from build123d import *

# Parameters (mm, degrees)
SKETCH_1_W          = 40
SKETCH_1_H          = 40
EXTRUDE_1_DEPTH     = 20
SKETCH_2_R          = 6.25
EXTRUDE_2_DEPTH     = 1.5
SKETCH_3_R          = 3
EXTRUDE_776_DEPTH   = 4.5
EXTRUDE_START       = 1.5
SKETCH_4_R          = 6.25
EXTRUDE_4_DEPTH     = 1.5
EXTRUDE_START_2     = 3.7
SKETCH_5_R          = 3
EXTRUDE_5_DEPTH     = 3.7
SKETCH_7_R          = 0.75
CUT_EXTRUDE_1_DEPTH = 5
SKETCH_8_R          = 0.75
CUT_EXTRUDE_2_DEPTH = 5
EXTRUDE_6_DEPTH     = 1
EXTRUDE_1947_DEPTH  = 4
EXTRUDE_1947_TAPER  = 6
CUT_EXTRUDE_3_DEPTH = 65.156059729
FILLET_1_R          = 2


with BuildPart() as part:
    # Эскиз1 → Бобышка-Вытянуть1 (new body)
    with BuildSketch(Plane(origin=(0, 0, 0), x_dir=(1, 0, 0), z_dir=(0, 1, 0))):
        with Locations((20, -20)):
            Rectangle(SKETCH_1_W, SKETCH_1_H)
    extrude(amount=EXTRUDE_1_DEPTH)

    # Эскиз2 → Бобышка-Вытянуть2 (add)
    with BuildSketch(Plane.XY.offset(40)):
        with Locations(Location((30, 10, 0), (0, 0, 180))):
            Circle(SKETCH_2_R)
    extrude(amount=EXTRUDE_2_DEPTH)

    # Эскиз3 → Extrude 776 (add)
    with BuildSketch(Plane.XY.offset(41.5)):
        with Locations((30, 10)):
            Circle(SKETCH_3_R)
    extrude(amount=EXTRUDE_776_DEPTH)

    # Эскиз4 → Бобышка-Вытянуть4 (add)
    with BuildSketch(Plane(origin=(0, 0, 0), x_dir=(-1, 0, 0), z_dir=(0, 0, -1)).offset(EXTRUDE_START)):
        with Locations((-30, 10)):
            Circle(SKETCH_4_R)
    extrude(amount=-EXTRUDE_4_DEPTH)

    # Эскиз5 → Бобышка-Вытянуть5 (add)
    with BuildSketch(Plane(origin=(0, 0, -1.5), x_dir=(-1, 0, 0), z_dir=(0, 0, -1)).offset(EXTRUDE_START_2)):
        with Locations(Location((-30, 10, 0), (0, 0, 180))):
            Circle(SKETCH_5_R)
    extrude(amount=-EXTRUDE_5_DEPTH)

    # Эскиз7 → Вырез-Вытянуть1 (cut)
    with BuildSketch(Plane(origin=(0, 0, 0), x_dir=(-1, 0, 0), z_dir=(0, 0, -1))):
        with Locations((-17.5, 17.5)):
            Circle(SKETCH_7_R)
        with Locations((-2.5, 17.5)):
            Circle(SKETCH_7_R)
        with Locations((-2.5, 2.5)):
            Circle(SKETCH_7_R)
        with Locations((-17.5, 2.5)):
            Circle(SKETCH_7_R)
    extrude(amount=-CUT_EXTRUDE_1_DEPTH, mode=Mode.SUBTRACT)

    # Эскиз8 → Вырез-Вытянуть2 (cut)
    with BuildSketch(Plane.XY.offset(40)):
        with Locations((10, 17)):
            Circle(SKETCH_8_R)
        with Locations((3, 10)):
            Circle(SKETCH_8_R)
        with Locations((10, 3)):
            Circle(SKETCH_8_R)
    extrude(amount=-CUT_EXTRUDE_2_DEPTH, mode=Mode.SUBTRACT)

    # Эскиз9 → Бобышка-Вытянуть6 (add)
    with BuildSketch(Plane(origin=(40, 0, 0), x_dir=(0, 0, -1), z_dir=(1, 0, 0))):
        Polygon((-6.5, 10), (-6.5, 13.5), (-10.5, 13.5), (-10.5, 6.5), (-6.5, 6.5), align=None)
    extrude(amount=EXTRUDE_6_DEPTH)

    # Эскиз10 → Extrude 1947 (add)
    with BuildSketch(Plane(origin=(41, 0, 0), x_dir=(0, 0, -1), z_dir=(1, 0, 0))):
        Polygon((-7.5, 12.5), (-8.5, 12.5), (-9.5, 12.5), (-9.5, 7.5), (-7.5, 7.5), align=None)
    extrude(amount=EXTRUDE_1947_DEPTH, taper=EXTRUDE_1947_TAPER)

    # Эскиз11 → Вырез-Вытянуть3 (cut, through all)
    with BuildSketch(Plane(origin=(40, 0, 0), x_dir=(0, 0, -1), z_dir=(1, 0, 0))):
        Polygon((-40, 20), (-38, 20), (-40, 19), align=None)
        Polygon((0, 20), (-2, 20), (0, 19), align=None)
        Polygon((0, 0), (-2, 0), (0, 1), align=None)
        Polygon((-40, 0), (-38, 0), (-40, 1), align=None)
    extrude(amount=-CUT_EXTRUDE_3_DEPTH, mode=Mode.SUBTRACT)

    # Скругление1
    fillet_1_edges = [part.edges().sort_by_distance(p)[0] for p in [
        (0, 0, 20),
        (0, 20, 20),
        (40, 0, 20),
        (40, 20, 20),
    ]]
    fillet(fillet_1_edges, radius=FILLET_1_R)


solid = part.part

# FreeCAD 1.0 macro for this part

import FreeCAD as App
import Part
import Sketcher
Q = App.Units.Quantity


def edges_at(feature, points):
    """Names of the edges that pass closest to the given points."""
    edges = feature.Shape.Edges
    near = lambda p: min(range(len(edges)), key=lambda i: edges[i].distToShape(Part.Vertex(*p))[0])
    return sorted({f"Edge{near(p) + 1}" for p in points})

doc = App.newDocument("Part")
params = doc.addObject("Spreadsheet::Sheet", "Params")
for row, (alias, value) in enumerate([
    ("sketch1_width", "40 mm"),
    ("pad1_length", "20 mm"),
    ("sketch2_diameter", "12.5 mm"),
    ("pad2_length", "1.5 mm"),
    ("sketch3_diameter", "6 mm"),
    ("pad3_length", "4.5 mm"),
    ("sketch4_diameter", "12.5 mm"),
    ("pad4_length", "1.5 mm"),
    ("sketch5_diameter", "6 mm"),
    ("pad5_length", "3.7 mm"),
    ("sketch6_diameter", "1.5 mm"),
    ("pocket1_length", "5 mm"),
    ("sketch7_diameter", "1.5 mm"),
    ("pocket2_length", "5 mm"),
    ("sketch8_width", "7 mm"),
    ("sketch8_height", "4 mm"),
    ("pad6_length", "1 mm"),
    ("sketch9_width", "5 mm"),
    ("sketch9_height", "2 mm"),
    ("pad7_length", "4 mm"),
    ("pad7_taper", "-6 deg"),
    ("sketch10_width", "1 mm"),
    ("sketch10_height", "2 mm"),
    ("fillet_radius", "2 mm"),
], start=1):
    params.set(f"A{row}", alias)
    params.set(f"B{row}", "=" + value)
    params.setAlias(f"B{row}", alias)

body = doc.addObject("PartDesign::Body", "Body")

# Sketch on XZ plane
sketch1 = body.newObject("Sketcher::SketchObject", "Sketch")
sketch1.AttachmentSupport = (doc.getObject("XZ_Plane"), [""])
sketch1.MapMode = "FlatFace"
sketch1.addGeometry(Part.LineSegment(App.Vector(0, 0, 0), App.Vector(0, 40, 0)), False)
sketch1.addGeometry(Part.LineSegment(App.Vector(0, 40, 0), App.Vector(40, 40, 0)), False)
sketch1.addGeometry(Part.LineSegment(App.Vector(40, 40, 0), App.Vector(40, 0, 0)), False)
sketch1.addGeometry(Part.LineSegment(App.Vector(40, 0, 0), App.Vector(0, 0, 0)), False)
sketch1.addConstraint(Sketcher.Constraint("Coincident", 0, 2, 1, 1))
sketch1.addConstraint(Sketcher.Constraint("Coincident", 1, 2, 2, 1))
sketch1.addConstraint(Sketcher.Constraint("Coincident", 2, 2, 3, 1))
sketch1.addConstraint(Sketcher.Constraint("Coincident", 3, 2, 0, 1))
sketch1.addConstraint(Sketcher.Constraint("Vertical", 0))
sketch1.addConstraint(Sketcher.Constraint("Horizontal", 1))
sketch1.addConstraint(Sketcher.Constraint("Vertical", 2))
sketch1.addConstraint(Sketcher.Constraint("Horizontal", 3))
sketch1.addConstraint(Sketcher.Constraint("Coincident", 3, 2, -1, 1))
sketch1.addConstraint(Sketcher.Constraint("Equal", 3, 0))
sketch1.addConstraint(Sketcher.Constraint("DistanceX", 1, 1, 1, 2, Q("40 mm")))
sketch1.setExpression("Constraints[10]", "Params.sketch1_width")
pad1 = body.newObject("PartDesign::Pad", "Pad")
pad1.Profile = sketch1
pad1.setExpression("Length", "Params.pad1_length")
pad1.Reversed = True

# Sketch on XY plane
sketch2 = body.newObject("Sketcher::SketchObject", "Sketch001")
sketch2.AttachmentSupport = (doc.getObject("XY_Plane"), [""])
sketch2.MapMode = "FlatFace"
sketch2.AttachmentOffset = App.Placement(App.Vector(0, 0, 40), App.Rotation())
sketch2.addGeometry(Part.Circle(App.Vector(30, 10, 0), App.Vector(0, 0, 1), 6), False)
sketch2.addConstraint(Sketcher.Constraint("Diameter", 0, Q("12.5 mm")))
sketch2.addConstraint(Sketcher.Constraint("DistanceX", -1, 1, 0, 3, Q("30 mm")))
sketch2.addConstraint(Sketcher.Constraint("DistanceY", -1, 1, 0, 3, Q("10 mm")))
sketch2.setExpression("Constraints[0]", "Params.sketch2_diameter")
pad2 = body.newObject("PartDesign::Pad", "Pad001")
pad2.Profile = sketch2
pad2.setExpression("Length", "Params.pad2_length")

# Sketch on XY plane
sketch3 = body.newObject("Sketcher::SketchObject", "Sketch002")
sketch3.AttachmentSupport = (doc.getObject("XY_Plane"), [""])
sketch3.MapMode = "FlatFace"
sketch3.AttachmentOffset = App.Placement(App.Vector(0, 0, 41.5), App.Rotation())
sketch3.addGeometry(Part.Circle(App.Vector(30, 10, 0), App.Vector(0, 0, 1), 3), False)
sketch3.addConstraint(Sketcher.Constraint("Diameter", 0, Q("6 mm")))
sketch3.addConstraint(Sketcher.Constraint("DistanceX", -1, 1, 0, 3, Q("30 mm")))
sketch3.addConstraint(Sketcher.Constraint("DistanceY", -1, 1, 0, 3, Q("10 mm")))
sketch3.setExpression("Constraints[0]", "Params.sketch3_diameter")
pad3 = body.newObject("PartDesign::Pad", "Pad002")
pad3.Profile = sketch3
pad3.setExpression("Length", "Params.pad3_length")

# Sketch on XY plane
sketch4 = body.newObject("Sketcher::SketchObject", "Sketch003")
sketch4.AttachmentSupport = (doc.getObject("XY_Plane"), [""])
sketch4.MapMode = "FlatFace"
sketch4.AttachmentOffset = App.Placement(App.Vector(0, 0, -1.5), App.Rotation())
sketch4.addGeometry(Part.Circle(App.Vector(30, 10, 0), App.Vector(0, 0, 1), 6), False)
sketch4.addConstraint(Sketcher.Constraint("Diameter", 0, Q("12.5 mm")))
sketch4.addConstraint(Sketcher.Constraint("DistanceX", -1, 1, 0, 3, Q("30 mm")))
sketch4.addConstraint(Sketcher.Constraint("DistanceY", -1, 1, 0, 3, Q("10 mm")))
sketch4.setExpression("Constraints[0]", "Params.sketch4_diameter")
pad4 = body.newObject("PartDesign::Pad", "Pad003")
pad4.Profile = sketch4
pad4.setExpression("Length", "Params.pad4_length")

# Sketch on XY plane
sketch5 = body.newObject("Sketcher::SketchObject", "Sketch004")
sketch5.AttachmentSupport = (doc.getObject("XY_Plane"), [""])
sketch5.MapMode = "FlatFace"
sketch5.AttachmentOffset = App.Placement(App.Vector(0, 0, -5.2), App.Rotation())
sketch5.addGeometry(Part.Circle(App.Vector(30, 10, 0), App.Vector(0, 0, 1), 3), False)
sketch5.addConstraint(Sketcher.Constraint("Diameter", 0, Q("6 mm")))
sketch5.addConstraint(Sketcher.Constraint("DistanceX", -1, 1, 0, 3, Q("30 mm")))
sketch5.addConstraint(Sketcher.Constraint("DistanceY", -1, 1, 0, 3, Q("10 mm")))
sketch5.setExpression("Constraints[0]", "Params.sketch5_diameter")
pad5 = body.newObject("PartDesign::Pad", "Pad004")
pad5.Profile = sketch5
pad5.setExpression("Length", "Params.pad5_length")

# Sketch on XY plane
sketch6 = body.newObject("Sketcher::SketchObject", "Sketch005")
sketch6.AttachmentSupport = (doc.getObject("XY_Plane"), [""])
sketch6.MapMode = "FlatFace"
sketch6.addGeometry(Part.Circle(App.Vector(17.5, 17.5, 0), App.Vector(0, 0, 1), 0.8), False)
sketch6.addGeometry(Part.Circle(App.Vector(2.5, 17.5, 0), App.Vector(0, 0, 1), 0.8), False)
sketch6.addGeometry(Part.Circle(App.Vector(2.5, 2.5, 0), App.Vector(0, 0, 1), 0.8), False)
sketch6.addGeometry(Part.Circle(App.Vector(17.5, 2.5, 0), App.Vector(0, 0, 1), 0.8), False)
sketch6.addConstraint(Sketcher.Constraint("Equal", 0, 1))
sketch6.addConstraint(Sketcher.Constraint("Equal", 1, 2))
sketch6.addConstraint(Sketcher.Constraint("Equal", 2, 3))
sketch6.addConstraint(Sketcher.Constraint("Horizontal", 0, 3, 1, 3))
sketch6.addConstraint(Sketcher.Constraint("Horizontal", 2, 3, 3, 3))
sketch6.addConstraint(Sketcher.Constraint("Vertical", 1, 3, 2, 3))
sketch6.addConstraint(Sketcher.Constraint("Vertical", 0, 3, 3, 3))
sketch6.addConstraint(Sketcher.Constraint("Diameter", 0, Q("1.5 mm")))
sketch6.addConstraint(Sketcher.Constraint("DistanceX", 1, 3, 0, 3, Q("15 mm")))
sketch6.addConstraint(Sketcher.Constraint("DistanceY", 2, 3, 1, 3, Q("15 mm")))
sketch6.addConstraint(Sketcher.Constraint("DistanceX", -1, 1, 0, 3, Q("17.5 mm")))
sketch6.addConstraint(Sketcher.Constraint("DistanceY", -1, 1, 0, 3, Q("17.5 mm")))
sketch6.setExpression("Constraints[7]", "Params.sketch6_diameter")
pocket1 = body.newObject("PartDesign::Pocket", "Pocket")
pocket1.Profile = sketch6
pocket1.setExpression("Length", "Params.pocket1_length")
pocket1.Reversed = True

# Sketch on XY plane
sketch7 = body.newObject("Sketcher::SketchObject", "Sketch006")
sketch7.AttachmentSupport = (doc.getObject("XY_Plane"), [""])
sketch7.MapMode = "FlatFace"
sketch7.AttachmentOffset = App.Placement(App.Vector(0, 0, 40), App.Rotation())
sketch7.addGeometry(Part.Circle(App.Vector(10, 17, 0), App.Vector(0, 0, 1), 0.8), False)
sketch7.addGeometry(Part.Circle(App.Vector(3, 10, 0), App.Vector(0, 0, 1), 0.8), False)
sketch7.addGeometry(Part.Circle(App.Vector(10, 3, 0), App.Vector(0, 0, 1), 0.8), False)
sketch7.addConstraint(Sketcher.Constraint("Equal", 0, 1))
sketch7.addConstraint(Sketcher.Constraint("Equal", 1, 2))
sketch7.addConstraint(Sketcher.Constraint("Vertical", 0, 3, 2, 3))
sketch7.addConstraint(Sketcher.Constraint("Diameter", 0, Q("1.5 mm")))
sketch7.addConstraint(Sketcher.Constraint("DistanceX", -1, 1, 0, 3, Q("10 mm")))
sketch7.addConstraint(Sketcher.Constraint("DistanceY", -1, 1, 0, 3, Q("17 mm")))
sketch7.addConstraint(Sketcher.Constraint("DistanceX", -1, 1, 1, 3, Q("3 mm")))
sketch7.addConstraint(Sketcher.Constraint("DistanceY", -1, 1, 1, 3, Q("10 mm")))
sketch7.addConstraint(Sketcher.Constraint("DistanceY", -1, 1, 2, 3, Q("3 mm")))
sketch7.setExpression("Constraints[3]", "Params.sketch7_diameter")
pocket2 = body.newObject("PartDesign::Pocket", "Pocket001")
pocket2.Profile = sketch7
pocket2.setExpression("Length", "Params.pocket2_length")

# Sketch on YZ plane
sketch8 = body.newObject("Sketcher::SketchObject", "Sketch007")
sketch8.AttachmentSupport = (doc.getObject("YZ_Plane"), [""])
sketch8.MapMode = "FlatFace"
sketch8.AttachmentOffset = App.Placement(App.Vector(0, 0, 40), App.Rotation())
sketch8.addGeometry(Part.LineSegment(App.Vector(13.5, 6.5, 0), App.Vector(13.5, 10.5, 0)), False)
sketch8.addGeometry(Part.LineSegment(App.Vector(13.5, 10.5, 0), App.Vector(6.5, 10.5, 0)), False)
sketch8.addGeometry(Part.LineSegment(App.Vector(6.5, 10.5, 0), App.Vector(6.5, 6.5, 0)), False)
sketch8.addGeometry(Part.LineSegment(App.Vector(6.5, 6.5, 0), App.Vector(13.5, 6.5, 0)), False)
sketch8.addConstraint(Sketcher.Constraint("Coincident", 0, 2, 1, 1))
sketch8.addConstraint(Sketcher.Constraint("Coincident", 1, 2, 2, 1))
sketch8.addConstraint(Sketcher.Constraint("Coincident", 2, 2, 3, 1))
sketch8.addConstraint(Sketcher.Constraint("Coincident", 3, 2, 0, 1))
sketch8.addConstraint(Sketcher.Constraint("Vertical", 0))
sketch8.addConstraint(Sketcher.Constraint("Horizontal", 1))
sketch8.addConstraint(Sketcher.Constraint("Vertical", 2))
sketch8.addConstraint(Sketcher.Constraint("Horizontal", 3))
sketch8.addConstraint(Sketcher.Constraint("DistanceX", 1, 2, 1, 1, Q("7 mm")))
sketch8.addConstraint(Sketcher.Constraint("DistanceY", 0, 1, 0, 2, Q("4 mm")))
sketch8.addConstraint(Sketcher.Constraint("DistanceX", -1, 1, 0, 2, Q("13.5 mm")))
sketch8.addConstraint(Sketcher.Constraint("DistanceY", -1, 1, 0, 2, Q("10.5 mm")))
sketch8.setExpression("Constraints[8]", "Params.sketch8_width")
sketch8.setExpression("Constraints[9]", "Params.sketch8_height")
pad6 = body.newObject("PartDesign::Pad", "Pad005")
pad6.Profile = sketch8
pad6.setExpression("Length", "Params.pad6_length")

# Sketch on YZ plane
sketch9 = body.newObject("Sketcher::SketchObject", "Sketch008")
sketch9.AttachmentSupport = (doc.getObject("YZ_Plane"), [""])
sketch9.MapMode = "FlatFace"
sketch9.AttachmentOffset = App.Placement(App.Vector(0, 0, 41), App.Rotation())
sketch9.addGeometry(Part.LineSegment(App.Vector(12.5, 7.5, 0), App.Vector(12.5, 9.5, 0)), False)
sketch9.addGeometry(Part.LineSegment(App.Vector(12.5, 9.5, 0), App.Vector(7.5, 9.5, 0)), False)
sketch9.addGeometry(Part.LineSegment(App.Vector(7.5, 9.5, 0), App.Vector(7.5, 7.5, 0)), False)
sketch9.addGeometry(Part.LineSegment(App.Vector(7.5, 7.5, 0), App.Vector(12.5, 7.5, 0)), False)
sketch9.addConstraint(Sketcher.Constraint("Coincident", 0, 2, 1, 1))
sketch9.addConstraint(Sketcher.Constraint("Coincident", 1, 2, 2, 1))
sketch9.addConstraint(Sketcher.Constraint("Coincident", 2, 2, 3, 1))
sketch9.addConstraint(Sketcher.Constraint("Coincident", 3, 2, 0, 1))
sketch9.addConstraint(Sketcher.Constraint("Vertical", 0))
sketch9.addConstraint(Sketcher.Constraint("Horizontal", 1))
sketch9.addConstraint(Sketcher.Constraint("Vertical", 2))
sketch9.addConstraint(Sketcher.Constraint("Horizontal", 3))
sketch9.addConstraint(Sketcher.Constraint("DistanceX", 1, 2, 1, 1, Q("5 mm")))
sketch9.addConstraint(Sketcher.Constraint("DistanceY", 0, 1, 0, 2, Q("2 mm")))
sketch9.addConstraint(Sketcher.Constraint("DistanceX", -1, 1, 0, 2, Q("12.5 mm")))
sketch9.addConstraint(Sketcher.Constraint("DistanceY", -1, 1, 0, 2, Q("9.5 mm")))
sketch9.setExpression("Constraints[8]", "Params.sketch9_width")
sketch9.setExpression("Constraints[9]", "Params.sketch9_height")
pad7 = body.newObject("PartDesign::Pad", "Pad006")
pad7.Profile = sketch9
pad7.setExpression("Length", "Params.pad7_length")
pad7.setExpression("TaperAngle", "Params.pad7_taper")

# Sketch on YZ plane
sketch10 = body.newObject("Sketcher::SketchObject", "Sketch009")
sketch10.AttachmentSupport = (doc.getObject("YZ_Plane"), [""])
sketch10.MapMode = "FlatFace"
sketch10.AttachmentOffset = App.Placement(App.Vector(0, 0, 40), App.Rotation())
sketch10.addGeometry(Part.LineSegment(App.Vector(20, 38, 0), App.Vector(20, 40, 0)), False)
sketch10.addGeometry(Part.LineSegment(App.Vector(20, 40, 0), App.Vector(19, 40, 0)), False)
sketch10.addGeometry(Part.LineSegment(App.Vector(19, 40, 0), App.Vector(20, 38, 0)), False)
sketch10.addGeometry(Part.LineSegment(App.Vector(20, 0, 0), App.Vector(20, 2, 0)), False)
sketch10.addGeometry(Part.LineSegment(App.Vector(20, 2, 0), App.Vector(19, 0, 0)), False)
sketch10.addGeometry(Part.LineSegment(App.Vector(19, 0, 0), App.Vector(20, 0, 0)), False)
sketch10.addGeometry(Part.LineSegment(App.Vector(0, 2, 0), App.Vector(0, 0, 0)), False)
sketch10.addGeometry(Part.LineSegment(App.Vector(0, 0, 0), App.Vector(1, 0, 0)), False)
sketch10.addGeometry(Part.LineSegment(App.Vector(1, 0, 0), App.Vector(0, 2, 0)), False)
sketch10.addGeometry(Part.LineSegment(App.Vector(0, 40, 0), App.Vector(0, 38, 0)), False)
sketch10.addGeometry(Part.LineSegment(App.Vector(0, 38, 0), App.Vector(1, 40, 0)), False)
sketch10.addGeometry(Part.LineSegment(App.Vector(1, 40, 0), App.Vector(0, 40, 0)), False)
sketch10.addConstraint(Sketcher.Constraint("Coincident", 0, 2, 1, 1))
sketch10.addConstraint(Sketcher.Constraint("Coincident", 1, 2, 2, 1))
sketch10.addConstraint(Sketcher.Constraint("Coincident", 2, 2, 0, 1))
sketch10.addConstraint(Sketcher.Constraint("Coincident", 3, 2, 4, 1))
sketch10.addConstraint(Sketcher.Constraint("Coincident", 4, 2, 5, 1))
sketch10.addConstraint(Sketcher.Constraint("Coincident", 5, 2, 3, 1))
sketch10.addConstraint(Sketcher.Constraint("Coincident", 6, 2, 7, 1))
sketch10.addConstraint(Sketcher.Constraint("Coincident", 7, 2, 8, 1))
sketch10.addConstraint(Sketcher.Constraint("Coincident", 8, 2, 6, 1))
sketch10.addConstraint(Sketcher.Constraint("Coincident", 9, 2, 10, 1))
sketch10.addConstraint(Sketcher.Constraint("Coincident", 10, 2, 11, 1))
sketch10.addConstraint(Sketcher.Constraint("Coincident", 11, 2, 9, 1))
sketch10.addConstraint(Sketcher.Constraint("Vertical", 0))
sketch10.addConstraint(Sketcher.Constraint("Horizontal", 1))
sketch10.addConstraint(Sketcher.Constraint("Vertical", 3))
sketch10.addConstraint(Sketcher.Constraint("Horizontal", 5))
sketch10.addConstraint(Sketcher.Constraint("Vertical", 6))
sketch10.addConstraint(Sketcher.Constraint("Horizontal", 7))
sketch10.addConstraint(Sketcher.Constraint("Vertical", 9))
sketch10.addConstraint(Sketcher.Constraint("Horizontal", 11))
sketch10.addConstraint(Sketcher.Constraint("Coincident", 6, 2, -1, 1))
sketch10.addConstraint(Sketcher.Constraint("PointOnObject", 4, 2, -1))
sketch10.addConstraint(Sketcher.Constraint("PointOnObject", 9, 2, -2))
sketch10.addConstraint(Sketcher.Constraint("Parallel", 2, 8))
sketch10.addConstraint(Sketcher.Constraint("Parallel", 4, 10))
sketch10.addConstraint(Sketcher.Constraint("Horizontal", 3, 2, 8, 2))
sketch10.addConstraint(Sketcher.Constraint("Horizontal", 2, 2, 9, 2))
sketch10.addConstraint(Sketcher.Constraint("Horizontal", 1, 2, 10, 2))
sketch10.addConstraint(Sketcher.Constraint("Vertical", 2, 2, 3, 2))
sketch10.addConstraint(Sketcher.Constraint("Vertical", 1, 2, 4, 2))
sketch10.addConstraint(Sketcher.Constraint("Vertical", 7, 2, 10, 2))
sketch10.addConstraint(Sketcher.Constraint("DistanceX", 1, 2, 1, 1, Q("1 mm")))
sketch10.addConstraint(Sketcher.Constraint("DistanceY", 0, 1, 0, 2, Q("2 mm")))
sketch10.addConstraint(Sketcher.Constraint("DistanceX", -1, 1, 0, 2, Q("20 mm")))
sketch10.addConstraint(Sketcher.Constraint("DistanceY", -1, 1, 0, 2, Q("40 mm")))
sketch10.setExpression("Constraints[31]", "Params.sketch10_width")
sketch10.setExpression("Constraints[32]", "Params.sketch10_height")
pocket3 = body.newObject("PartDesign::Pocket", "Pocket002")
pocket3.Profile = sketch10
pocket3.Type = "ThroughAll"
doc.recompute()

fillet = body.newObject("PartDesign::Fillet", "Fillet")
fillet.Base = (pocket3, edges_at(pocket3, [
    (0, 0, 20),
    (0, 20, 20),
    (40, 0, 20),
    (40, 20, 20),
]))
fillet.setExpression("Radius", "Params.fillet_radius")

doc.recompute()
